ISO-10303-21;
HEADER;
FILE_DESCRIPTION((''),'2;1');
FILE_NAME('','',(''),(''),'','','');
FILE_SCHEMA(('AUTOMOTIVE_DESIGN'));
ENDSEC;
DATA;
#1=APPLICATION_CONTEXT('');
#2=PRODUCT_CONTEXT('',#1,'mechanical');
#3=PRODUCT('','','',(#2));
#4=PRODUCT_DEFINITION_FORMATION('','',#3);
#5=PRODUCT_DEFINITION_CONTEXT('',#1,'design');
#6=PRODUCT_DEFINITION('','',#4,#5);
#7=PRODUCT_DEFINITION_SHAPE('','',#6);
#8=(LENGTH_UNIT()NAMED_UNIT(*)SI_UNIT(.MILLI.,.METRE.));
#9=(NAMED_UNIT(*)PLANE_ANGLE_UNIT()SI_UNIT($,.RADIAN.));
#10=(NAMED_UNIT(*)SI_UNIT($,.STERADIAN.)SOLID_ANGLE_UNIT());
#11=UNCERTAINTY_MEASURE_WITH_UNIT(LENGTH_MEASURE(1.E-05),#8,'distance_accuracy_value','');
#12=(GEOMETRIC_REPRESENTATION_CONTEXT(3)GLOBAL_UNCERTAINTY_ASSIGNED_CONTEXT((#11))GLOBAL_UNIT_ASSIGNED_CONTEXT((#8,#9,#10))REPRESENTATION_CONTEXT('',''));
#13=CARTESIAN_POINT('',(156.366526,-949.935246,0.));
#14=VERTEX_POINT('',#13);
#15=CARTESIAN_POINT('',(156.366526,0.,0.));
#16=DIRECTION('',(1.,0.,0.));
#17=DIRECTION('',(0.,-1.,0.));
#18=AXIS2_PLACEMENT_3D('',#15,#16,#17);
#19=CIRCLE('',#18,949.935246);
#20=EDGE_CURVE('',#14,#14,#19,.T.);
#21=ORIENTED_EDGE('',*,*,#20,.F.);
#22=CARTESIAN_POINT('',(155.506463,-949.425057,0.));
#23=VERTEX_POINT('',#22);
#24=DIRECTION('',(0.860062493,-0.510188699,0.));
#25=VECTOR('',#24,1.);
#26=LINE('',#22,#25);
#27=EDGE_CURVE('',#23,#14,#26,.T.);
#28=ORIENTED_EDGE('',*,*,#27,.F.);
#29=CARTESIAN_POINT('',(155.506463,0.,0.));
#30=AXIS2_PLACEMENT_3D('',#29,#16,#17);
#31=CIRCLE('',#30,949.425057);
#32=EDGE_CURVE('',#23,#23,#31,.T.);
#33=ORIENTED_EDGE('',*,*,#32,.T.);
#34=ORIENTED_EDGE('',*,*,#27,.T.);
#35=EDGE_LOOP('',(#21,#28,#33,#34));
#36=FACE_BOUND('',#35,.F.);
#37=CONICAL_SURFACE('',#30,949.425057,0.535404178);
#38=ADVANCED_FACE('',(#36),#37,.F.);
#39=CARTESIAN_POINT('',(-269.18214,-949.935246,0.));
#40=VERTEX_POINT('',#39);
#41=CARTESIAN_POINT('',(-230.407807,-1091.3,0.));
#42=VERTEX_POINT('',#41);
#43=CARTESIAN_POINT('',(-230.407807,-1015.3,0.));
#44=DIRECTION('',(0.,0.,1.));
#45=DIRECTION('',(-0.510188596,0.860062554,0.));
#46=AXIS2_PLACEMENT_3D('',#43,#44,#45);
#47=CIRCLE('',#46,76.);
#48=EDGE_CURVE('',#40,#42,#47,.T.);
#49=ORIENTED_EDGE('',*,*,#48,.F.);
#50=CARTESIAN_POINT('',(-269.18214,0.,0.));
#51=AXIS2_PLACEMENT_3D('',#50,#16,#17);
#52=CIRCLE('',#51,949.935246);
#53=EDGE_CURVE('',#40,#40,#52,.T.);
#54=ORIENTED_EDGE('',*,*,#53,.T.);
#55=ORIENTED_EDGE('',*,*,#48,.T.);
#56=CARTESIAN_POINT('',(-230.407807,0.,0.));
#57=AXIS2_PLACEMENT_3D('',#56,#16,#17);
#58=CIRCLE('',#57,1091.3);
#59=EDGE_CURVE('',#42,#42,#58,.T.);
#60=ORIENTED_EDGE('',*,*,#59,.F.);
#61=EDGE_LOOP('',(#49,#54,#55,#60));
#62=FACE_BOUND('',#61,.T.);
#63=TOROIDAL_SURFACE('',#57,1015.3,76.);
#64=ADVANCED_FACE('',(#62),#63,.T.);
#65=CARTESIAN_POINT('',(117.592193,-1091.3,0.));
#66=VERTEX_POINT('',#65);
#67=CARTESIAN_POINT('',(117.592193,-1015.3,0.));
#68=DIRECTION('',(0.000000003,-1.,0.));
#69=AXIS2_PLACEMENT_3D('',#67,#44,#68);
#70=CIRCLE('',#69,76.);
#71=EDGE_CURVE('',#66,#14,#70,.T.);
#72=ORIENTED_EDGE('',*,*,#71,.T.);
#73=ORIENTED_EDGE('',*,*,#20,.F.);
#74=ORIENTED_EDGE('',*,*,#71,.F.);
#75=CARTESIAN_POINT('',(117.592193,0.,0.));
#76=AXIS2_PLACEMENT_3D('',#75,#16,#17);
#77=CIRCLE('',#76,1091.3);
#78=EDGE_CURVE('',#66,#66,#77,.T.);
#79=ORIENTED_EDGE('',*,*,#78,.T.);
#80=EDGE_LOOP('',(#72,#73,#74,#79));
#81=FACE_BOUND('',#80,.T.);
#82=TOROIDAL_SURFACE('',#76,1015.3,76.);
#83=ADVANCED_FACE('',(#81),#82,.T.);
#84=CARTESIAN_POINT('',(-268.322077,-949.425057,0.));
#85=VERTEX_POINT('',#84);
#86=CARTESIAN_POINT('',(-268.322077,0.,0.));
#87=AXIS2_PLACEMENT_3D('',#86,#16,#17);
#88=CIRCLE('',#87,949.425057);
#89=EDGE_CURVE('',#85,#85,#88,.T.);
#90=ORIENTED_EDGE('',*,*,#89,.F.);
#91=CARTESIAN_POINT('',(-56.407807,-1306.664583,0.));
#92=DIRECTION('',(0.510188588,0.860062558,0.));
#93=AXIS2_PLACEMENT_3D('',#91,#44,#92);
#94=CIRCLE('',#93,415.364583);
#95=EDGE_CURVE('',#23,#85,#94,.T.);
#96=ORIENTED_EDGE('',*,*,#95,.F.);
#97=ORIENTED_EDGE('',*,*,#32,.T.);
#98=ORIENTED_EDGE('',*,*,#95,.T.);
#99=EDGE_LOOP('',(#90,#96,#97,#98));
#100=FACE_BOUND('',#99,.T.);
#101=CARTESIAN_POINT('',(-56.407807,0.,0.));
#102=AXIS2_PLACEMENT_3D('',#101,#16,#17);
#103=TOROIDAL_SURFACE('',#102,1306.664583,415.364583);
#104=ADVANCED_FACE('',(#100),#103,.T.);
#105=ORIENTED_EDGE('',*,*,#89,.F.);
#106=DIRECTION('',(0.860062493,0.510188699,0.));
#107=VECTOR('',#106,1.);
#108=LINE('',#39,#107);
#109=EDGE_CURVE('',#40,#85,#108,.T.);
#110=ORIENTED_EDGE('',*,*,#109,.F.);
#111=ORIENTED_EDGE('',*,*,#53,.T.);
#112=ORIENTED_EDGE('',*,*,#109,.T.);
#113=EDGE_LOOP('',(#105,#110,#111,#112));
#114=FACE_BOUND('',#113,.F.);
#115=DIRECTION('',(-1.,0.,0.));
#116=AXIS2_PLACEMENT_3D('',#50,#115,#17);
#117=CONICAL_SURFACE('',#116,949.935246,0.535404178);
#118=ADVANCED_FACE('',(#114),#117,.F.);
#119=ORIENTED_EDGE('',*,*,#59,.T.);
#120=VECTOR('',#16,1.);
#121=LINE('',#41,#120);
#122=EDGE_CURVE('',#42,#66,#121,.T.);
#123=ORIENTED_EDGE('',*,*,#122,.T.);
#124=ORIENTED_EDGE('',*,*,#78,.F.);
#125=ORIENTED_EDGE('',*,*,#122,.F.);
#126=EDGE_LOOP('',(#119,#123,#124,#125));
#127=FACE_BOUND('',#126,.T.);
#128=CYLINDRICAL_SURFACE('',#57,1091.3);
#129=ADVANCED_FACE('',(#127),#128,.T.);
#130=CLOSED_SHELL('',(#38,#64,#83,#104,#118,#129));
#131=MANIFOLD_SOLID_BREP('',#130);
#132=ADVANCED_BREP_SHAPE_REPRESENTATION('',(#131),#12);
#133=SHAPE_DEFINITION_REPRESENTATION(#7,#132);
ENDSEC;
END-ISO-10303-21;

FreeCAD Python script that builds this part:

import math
import FreeCAD as App
import Part
import Sketcher

V = App.Vector

doc = App.newDocument("Part")
body = doc.addObject("PartDesign::Body", "Body")

# Sketch on XY plane
sketch1 = body.newObject("Sketcher::SketchObject", "Sketch")
sketch1.AttachmentSupport = (doc.getObject("XY_Plane"), [""])
sketch1.MapMode = "FlatFace"
sketch1.addGeometry([
    Part.LineSegment(V(-230.4, -1091.3, 0), V(117.6, -1091.3, 0)),  # 0
    Part.ArcOfCircle(Part.Circle(V(117.6, -1015.3, 0), V(0, 0, 1), 76), math.radians(-90), math.radians(59)),  # 1
    Part.LineSegment(V(156.4, -949.9, 0), V(155.5, -949.4, 0)),  # 2
    Part.ArcOfCircle(Part.Circle(V(-56.4, -1306.7, 0), V(0, 0, 1), 415.4), math.radians(59), math.radians(121)),  # 3
    Part.LineSegment(V(-268.3, -949.4, 0), V(-269.2, -949.9, 0)),  # 4
    Part.ArcOfCircle(Part.Circle(V(-230.4, -1015.3, 0), V(0, 0, 1), 76), math.radians(121), math.radians(270)),  # 5
], False)
sketch1.addConstraint([
    Sketcher.Constraint("Tangent", 0, 2, 1, 1),
    Sketcher.Constraint("Tangent", 1, 2, 2, 1),
    Sketcher.Constraint("Tangent", 2, 2, 3, 1),
    Sketcher.Constraint("Tangent", 3, 2, 4, 1),
    Sketcher.Constraint("Tangent", 4, 2, 5, 1),
    Sketcher.Constraint("Tangent", 5, 2, 0, 1),
    Sketcher.Constraint("Horizontal", 0),
    Sketcher.Constraint("Equal", 1, 5),
    Sketcher.Constraint("Horizontal", 2, 2, 3, 2),
    Sketcher.Constraint("Radius", 1, 76.0),
    Sketcher.Constraint("DistanceX", 0, 1, 0, 2, 348.0),
    Sketcher.Constraint("Distance", 2, 1.000001),
    Sketcher.Constraint("DistanceY", 1, 3, -1, 1, 1015.3),
    Sketcher.Constraint("Radius", 3, 415.364583),
    Sketcher.Constraint("DistanceX", 4, 2, -1, 1, 269.18214),
])
revolution = body.newObject("PartDesign::Revolution", "Revolution")
revolution.Profile = sketch1
revolution.ReferenceAxis = (sketch1, ["H_Axis"])
revolution.Angle = 360

doc.recompute()
